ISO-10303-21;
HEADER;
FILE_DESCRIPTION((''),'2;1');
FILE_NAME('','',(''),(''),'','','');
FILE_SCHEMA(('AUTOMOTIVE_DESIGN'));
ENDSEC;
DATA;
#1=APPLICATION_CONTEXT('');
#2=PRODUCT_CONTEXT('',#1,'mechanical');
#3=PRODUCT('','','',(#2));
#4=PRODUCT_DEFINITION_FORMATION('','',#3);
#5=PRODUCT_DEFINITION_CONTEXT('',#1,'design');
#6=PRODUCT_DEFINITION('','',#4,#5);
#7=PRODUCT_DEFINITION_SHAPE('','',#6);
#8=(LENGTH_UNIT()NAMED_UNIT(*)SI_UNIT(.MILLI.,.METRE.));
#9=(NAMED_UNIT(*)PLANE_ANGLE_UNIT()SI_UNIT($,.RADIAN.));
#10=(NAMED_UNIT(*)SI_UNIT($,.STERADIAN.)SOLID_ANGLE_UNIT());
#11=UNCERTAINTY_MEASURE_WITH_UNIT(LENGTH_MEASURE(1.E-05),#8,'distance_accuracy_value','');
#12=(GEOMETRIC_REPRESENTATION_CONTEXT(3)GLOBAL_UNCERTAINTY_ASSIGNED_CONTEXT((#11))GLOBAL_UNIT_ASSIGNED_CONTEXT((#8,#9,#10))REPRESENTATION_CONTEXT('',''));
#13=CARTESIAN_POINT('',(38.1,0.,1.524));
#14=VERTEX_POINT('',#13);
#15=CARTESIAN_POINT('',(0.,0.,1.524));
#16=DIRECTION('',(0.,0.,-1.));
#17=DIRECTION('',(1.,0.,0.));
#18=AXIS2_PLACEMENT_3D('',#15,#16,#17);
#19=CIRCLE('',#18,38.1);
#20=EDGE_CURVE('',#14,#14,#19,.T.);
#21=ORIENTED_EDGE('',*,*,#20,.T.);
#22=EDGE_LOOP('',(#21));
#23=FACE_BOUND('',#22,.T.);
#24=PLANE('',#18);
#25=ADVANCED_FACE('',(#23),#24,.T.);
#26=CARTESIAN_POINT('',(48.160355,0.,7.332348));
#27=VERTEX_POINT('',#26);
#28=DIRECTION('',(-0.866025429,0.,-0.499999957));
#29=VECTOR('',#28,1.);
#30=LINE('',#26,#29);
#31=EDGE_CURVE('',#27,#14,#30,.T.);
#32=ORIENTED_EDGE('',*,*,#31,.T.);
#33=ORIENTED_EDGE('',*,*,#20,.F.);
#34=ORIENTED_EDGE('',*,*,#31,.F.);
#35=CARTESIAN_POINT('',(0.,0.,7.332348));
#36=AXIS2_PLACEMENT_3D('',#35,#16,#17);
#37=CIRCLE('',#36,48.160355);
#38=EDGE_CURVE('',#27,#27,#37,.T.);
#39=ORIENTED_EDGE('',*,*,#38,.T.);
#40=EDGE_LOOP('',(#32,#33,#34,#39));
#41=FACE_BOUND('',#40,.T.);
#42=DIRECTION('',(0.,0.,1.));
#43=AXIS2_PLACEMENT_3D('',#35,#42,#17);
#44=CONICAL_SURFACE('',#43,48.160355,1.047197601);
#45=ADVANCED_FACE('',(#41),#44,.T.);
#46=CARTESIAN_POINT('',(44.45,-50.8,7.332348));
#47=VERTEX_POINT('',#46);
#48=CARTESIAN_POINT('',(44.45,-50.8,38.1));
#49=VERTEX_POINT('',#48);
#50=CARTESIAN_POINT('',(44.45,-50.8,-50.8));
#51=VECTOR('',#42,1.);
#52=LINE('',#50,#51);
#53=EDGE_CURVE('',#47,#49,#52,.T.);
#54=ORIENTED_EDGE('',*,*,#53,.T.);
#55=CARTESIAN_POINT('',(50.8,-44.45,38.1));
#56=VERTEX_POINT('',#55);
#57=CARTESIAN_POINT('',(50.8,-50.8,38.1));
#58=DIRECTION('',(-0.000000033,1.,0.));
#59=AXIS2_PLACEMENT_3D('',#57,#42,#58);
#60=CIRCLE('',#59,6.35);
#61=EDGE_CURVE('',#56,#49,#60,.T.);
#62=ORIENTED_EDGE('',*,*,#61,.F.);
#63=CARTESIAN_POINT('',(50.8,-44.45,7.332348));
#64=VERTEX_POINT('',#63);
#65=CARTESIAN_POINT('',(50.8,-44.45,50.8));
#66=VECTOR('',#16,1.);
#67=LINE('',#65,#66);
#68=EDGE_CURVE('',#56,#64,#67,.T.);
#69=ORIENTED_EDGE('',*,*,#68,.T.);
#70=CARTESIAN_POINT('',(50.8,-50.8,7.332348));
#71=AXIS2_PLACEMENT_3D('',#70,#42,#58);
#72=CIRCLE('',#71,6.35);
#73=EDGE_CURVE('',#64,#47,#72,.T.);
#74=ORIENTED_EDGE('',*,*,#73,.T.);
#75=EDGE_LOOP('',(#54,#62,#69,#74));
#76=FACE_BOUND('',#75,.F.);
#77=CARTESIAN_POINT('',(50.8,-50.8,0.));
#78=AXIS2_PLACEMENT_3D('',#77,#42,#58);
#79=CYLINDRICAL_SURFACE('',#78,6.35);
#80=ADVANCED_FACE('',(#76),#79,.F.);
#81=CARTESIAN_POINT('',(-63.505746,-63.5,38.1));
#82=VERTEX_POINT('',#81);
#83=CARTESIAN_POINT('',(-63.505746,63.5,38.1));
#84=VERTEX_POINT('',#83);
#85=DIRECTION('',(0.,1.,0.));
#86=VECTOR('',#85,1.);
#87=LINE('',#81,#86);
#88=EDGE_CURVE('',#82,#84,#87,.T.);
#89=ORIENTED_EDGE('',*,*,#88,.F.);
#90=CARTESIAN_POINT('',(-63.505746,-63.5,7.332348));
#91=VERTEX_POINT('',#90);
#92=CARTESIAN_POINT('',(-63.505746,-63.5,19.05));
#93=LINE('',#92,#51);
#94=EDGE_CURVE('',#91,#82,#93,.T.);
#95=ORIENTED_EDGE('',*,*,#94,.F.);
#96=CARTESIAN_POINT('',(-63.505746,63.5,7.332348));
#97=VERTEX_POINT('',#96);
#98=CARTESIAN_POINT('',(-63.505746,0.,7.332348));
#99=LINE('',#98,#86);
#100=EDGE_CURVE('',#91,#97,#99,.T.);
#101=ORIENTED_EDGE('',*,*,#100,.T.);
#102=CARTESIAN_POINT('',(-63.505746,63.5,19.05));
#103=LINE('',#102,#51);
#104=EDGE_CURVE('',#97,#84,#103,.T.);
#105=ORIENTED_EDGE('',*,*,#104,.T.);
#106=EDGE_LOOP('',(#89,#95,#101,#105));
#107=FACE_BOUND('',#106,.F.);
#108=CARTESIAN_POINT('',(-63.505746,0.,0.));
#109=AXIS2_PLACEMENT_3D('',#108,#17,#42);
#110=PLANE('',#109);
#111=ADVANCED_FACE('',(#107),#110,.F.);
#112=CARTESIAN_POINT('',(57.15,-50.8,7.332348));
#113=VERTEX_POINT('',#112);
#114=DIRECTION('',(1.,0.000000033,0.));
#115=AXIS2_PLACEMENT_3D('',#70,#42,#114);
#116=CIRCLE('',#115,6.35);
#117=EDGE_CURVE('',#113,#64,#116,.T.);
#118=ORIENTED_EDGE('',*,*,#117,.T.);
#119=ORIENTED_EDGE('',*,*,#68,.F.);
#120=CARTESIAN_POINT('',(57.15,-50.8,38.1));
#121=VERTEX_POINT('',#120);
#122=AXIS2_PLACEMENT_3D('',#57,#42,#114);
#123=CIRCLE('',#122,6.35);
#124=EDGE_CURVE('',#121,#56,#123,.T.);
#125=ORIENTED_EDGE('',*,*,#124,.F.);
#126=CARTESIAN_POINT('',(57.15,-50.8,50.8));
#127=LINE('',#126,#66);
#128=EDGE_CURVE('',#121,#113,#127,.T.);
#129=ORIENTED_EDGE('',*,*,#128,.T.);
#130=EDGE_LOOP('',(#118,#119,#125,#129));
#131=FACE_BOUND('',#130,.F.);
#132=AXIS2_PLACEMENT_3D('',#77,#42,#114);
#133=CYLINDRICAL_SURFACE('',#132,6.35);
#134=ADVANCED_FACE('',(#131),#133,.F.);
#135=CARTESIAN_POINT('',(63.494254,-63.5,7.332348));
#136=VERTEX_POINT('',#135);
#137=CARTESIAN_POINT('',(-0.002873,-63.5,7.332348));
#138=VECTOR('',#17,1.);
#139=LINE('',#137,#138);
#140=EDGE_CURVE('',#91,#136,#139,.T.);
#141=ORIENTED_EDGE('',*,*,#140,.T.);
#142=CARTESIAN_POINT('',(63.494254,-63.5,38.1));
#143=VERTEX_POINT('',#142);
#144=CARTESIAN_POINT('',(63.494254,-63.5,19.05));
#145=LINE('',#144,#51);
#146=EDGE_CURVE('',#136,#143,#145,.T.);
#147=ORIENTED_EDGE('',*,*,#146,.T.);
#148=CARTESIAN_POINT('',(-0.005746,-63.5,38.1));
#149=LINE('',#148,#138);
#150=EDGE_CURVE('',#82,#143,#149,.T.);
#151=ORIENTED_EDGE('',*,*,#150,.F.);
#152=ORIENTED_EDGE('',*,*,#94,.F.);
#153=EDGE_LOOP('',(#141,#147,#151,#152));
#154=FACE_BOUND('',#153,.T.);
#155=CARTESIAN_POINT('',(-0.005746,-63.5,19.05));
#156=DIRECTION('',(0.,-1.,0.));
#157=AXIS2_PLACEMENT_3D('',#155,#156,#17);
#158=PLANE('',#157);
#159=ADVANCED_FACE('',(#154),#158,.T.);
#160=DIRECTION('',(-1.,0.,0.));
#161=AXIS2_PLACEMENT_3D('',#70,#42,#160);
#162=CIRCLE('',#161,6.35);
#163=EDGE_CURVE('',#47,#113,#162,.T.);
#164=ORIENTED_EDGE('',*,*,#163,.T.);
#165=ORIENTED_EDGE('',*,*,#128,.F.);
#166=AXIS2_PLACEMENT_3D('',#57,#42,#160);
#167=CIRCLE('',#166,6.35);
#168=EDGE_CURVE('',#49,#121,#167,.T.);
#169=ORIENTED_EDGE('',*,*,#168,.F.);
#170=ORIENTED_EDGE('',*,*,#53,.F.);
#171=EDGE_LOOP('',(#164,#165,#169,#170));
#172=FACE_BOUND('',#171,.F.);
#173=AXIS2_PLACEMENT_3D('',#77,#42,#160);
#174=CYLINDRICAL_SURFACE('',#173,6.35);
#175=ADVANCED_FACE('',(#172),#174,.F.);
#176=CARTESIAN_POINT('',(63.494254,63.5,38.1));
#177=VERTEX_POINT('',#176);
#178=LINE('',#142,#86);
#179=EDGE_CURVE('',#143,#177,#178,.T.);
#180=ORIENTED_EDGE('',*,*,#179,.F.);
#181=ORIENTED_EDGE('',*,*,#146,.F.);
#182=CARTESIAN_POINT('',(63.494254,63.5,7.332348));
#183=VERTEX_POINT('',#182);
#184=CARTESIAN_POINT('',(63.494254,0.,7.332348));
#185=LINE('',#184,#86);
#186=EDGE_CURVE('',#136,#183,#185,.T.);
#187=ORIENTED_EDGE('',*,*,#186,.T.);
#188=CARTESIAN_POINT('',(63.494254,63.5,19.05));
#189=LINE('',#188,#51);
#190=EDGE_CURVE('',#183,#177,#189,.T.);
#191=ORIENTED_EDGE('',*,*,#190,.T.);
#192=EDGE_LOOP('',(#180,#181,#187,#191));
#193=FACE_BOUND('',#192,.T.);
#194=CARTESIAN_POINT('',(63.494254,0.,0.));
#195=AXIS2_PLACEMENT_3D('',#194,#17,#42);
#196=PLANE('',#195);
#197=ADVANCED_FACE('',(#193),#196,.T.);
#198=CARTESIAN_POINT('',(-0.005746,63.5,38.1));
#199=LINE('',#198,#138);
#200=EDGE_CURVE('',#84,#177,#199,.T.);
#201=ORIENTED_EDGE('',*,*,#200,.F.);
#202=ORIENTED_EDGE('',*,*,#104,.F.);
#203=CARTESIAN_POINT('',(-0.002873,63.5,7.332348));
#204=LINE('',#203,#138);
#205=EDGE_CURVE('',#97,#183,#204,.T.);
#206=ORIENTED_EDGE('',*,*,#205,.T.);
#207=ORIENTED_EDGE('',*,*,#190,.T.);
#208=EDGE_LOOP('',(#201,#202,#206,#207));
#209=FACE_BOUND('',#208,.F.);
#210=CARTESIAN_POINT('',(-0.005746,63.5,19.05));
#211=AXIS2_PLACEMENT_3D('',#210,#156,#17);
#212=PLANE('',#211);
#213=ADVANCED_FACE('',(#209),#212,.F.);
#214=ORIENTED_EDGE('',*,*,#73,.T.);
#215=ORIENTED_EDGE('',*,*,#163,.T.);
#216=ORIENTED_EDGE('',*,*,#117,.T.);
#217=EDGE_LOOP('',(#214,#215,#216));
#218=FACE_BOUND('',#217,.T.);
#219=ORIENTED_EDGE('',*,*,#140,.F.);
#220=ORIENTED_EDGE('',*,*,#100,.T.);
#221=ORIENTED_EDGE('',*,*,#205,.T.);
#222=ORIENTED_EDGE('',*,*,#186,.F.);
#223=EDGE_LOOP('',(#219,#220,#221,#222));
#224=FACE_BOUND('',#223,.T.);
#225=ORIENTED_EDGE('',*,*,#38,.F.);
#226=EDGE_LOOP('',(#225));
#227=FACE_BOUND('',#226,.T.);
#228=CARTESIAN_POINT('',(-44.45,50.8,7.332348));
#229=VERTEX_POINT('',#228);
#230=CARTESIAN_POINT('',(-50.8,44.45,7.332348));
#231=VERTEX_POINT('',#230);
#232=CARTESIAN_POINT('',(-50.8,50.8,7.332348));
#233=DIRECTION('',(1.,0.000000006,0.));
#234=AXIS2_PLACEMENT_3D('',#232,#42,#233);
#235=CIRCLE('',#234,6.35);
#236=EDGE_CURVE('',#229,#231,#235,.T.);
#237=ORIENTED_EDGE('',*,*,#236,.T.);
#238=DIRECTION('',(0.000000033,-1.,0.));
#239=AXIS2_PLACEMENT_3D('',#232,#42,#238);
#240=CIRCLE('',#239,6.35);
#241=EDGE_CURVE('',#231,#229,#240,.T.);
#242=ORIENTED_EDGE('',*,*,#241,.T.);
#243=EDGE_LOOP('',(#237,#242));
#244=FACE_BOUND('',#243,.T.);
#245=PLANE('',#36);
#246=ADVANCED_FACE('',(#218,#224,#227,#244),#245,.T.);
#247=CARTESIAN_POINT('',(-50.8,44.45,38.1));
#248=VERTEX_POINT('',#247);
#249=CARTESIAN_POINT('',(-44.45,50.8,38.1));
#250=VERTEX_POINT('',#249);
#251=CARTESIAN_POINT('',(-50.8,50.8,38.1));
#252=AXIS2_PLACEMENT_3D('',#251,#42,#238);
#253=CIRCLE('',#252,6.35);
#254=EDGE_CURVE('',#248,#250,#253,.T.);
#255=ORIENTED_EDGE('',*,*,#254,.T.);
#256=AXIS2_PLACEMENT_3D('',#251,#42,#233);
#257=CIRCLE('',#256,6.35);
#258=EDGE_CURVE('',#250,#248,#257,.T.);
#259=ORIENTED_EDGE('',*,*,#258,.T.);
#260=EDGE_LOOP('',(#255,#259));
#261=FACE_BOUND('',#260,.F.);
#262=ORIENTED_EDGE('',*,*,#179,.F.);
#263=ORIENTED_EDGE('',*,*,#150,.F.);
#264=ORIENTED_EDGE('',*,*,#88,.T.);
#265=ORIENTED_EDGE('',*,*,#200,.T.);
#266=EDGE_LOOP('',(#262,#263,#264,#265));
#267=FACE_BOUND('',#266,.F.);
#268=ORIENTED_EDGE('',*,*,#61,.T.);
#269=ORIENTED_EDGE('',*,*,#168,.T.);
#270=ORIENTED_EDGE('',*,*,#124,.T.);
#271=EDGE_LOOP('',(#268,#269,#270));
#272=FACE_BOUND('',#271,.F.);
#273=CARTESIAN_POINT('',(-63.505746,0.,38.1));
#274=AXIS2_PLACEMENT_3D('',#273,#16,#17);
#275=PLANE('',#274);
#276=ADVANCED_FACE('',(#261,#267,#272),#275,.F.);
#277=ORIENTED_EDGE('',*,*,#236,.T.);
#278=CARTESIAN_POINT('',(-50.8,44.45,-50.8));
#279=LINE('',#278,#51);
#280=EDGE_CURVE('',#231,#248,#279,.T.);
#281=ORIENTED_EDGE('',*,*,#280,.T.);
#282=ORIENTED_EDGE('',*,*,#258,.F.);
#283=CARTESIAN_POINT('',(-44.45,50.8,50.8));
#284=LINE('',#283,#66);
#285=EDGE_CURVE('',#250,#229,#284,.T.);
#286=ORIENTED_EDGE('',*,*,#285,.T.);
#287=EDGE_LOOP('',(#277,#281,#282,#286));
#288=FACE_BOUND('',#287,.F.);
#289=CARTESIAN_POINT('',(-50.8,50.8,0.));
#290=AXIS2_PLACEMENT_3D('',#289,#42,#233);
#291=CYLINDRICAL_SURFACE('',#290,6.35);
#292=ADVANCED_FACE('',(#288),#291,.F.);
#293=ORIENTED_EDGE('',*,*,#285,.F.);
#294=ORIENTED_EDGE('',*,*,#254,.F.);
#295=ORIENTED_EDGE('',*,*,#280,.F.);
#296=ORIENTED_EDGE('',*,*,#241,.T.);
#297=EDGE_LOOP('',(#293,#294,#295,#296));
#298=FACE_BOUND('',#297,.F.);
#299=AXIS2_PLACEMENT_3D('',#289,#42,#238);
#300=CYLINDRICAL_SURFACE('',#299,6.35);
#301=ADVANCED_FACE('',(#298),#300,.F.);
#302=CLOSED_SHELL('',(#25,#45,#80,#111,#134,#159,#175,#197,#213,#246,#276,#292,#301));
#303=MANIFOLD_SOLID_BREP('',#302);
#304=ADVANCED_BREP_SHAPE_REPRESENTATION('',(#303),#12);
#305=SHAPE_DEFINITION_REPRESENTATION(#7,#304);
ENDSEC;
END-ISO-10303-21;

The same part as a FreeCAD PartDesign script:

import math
import FreeCAD as App
import Part
import Sketcher
Q = App.Units.Quantity

doc = App.newDocument("Part")
body = doc.addObject("PartDesign::Body", "Body")

# Sketch on XZ plane
sketch1 = body.newObject("Sketcher::SketchObject", "Sketch")
sketch1.AttachmentSupport = (doc.getObject("XZ_Plane"), [""])
sketch1.MapMode = "FlatFace"
sketch1.addGeometry([
    Part.LineSegment(App.Vector(-64, 38, 0), App.Vector(-64, 0, 0)),
    Part.LineSegment(App.Vector(-64, 0, 0), App.Vector(63, 0, 0)),
    Part.LineSegment(App.Vector(63, 0, 0), App.Vector(63, 38, 0)),
    Part.LineSegment(App.Vector(63, 38, 0), App.Vector(-64, 38, 0)),
], False)
sketch1.addConstraint([
    Sketcher.Constraint("Coincident", 0, 2, 1, 1),
    Sketcher.Constraint("Coincident", 1, 2, 2, 1),
    Sketcher.Constraint("Coincident", 2, 2, 3, 1),
    Sketcher.Constraint("Coincident", 3, 2, 0, 1),
    Sketcher.Constraint("Vertical", 0),
    Sketcher.Constraint("Horizontal", 1),
    Sketcher.Constraint("Vertical", 2),
    Sketcher.Constraint("Horizontal", 3),
    Sketcher.Constraint("PointOnObject", 0, 2, -1),
    Sketcher.Constraint("DistanceX", 1, 1, 1, 2, Q("5 in")),
    Sketcher.Constraint("DistanceY", 0, 2, 0, 1, Q("1.5 in")),
    Sketcher.Constraint("DistanceX", 0, 2, -1, 1, 63.505746),
])
pad1 = body.newObject("PartDesign::Pad", "Pad")
pad1.Profile = sketch1
pad1.Length = Q("5 in")
pad1.Midplane = True

# Sketch on XZ plane
sketch2 = body.newObject("Sketcher::SketchObject", "Sketch001")
sketch2.AttachmentSupport = (doc.getObject("XZ_Plane"), [""])
sketch2.MapMode = "FlatFace"
sketch2.addGeometry([
    Part.LineSegment(App.Vector(48.2, 7.3, 0), App.Vector(38.1, 1.5, 0)),  # 0
    Part.LineSegment(App.Vector(38.1, 1.5, 0), App.Vector(0, 1.5, 0)),  # 1
    Part.LineSegment(App.Vector(0, 1.5, 0), App.Vector(0, 0, 0)),  # 2
    Part.LineSegment(App.Vector(0, 0, 0), App.Vector(92.6, 0, 0)),  # 3
    Part.LineSegment(App.Vector(92.6, 0, 0), App.Vector(92.6, 7.3, 0)),  # 4
    Part.LineSegment(App.Vector(92.6, 7.3, 0), App.Vector(48.2, 7.3, 0)),  # 5
], False)
sketch2.addConstraint([
    Sketcher.Constraint("Coincident", 0, 2, 1, 1),
    Sketcher.Constraint("Coincident", 1, 2, 2, 1),
    Sketcher.Constraint("Coincident", 2, 2, 3, 1),
    Sketcher.Constraint("Coincident", 3, 2, 4, 1),
    Sketcher.Constraint("Coincident", 4, 2, 5, 1),
    Sketcher.Constraint("Coincident", 5, 2, 0, 1),
    Sketcher.Constraint("Horizontal", 1),
    Sketcher.Constraint("Vertical", 2),
    Sketcher.Constraint("Horizontal", 3),
    Sketcher.Constraint("Vertical", 4),
    Sketcher.Constraint("Horizontal", 5),
    Sketcher.Constraint("Coincident", 2, 2, -1, 1),
    Sketcher.Constraint("DistanceX", 1, 2, 1, 1, Q("1.5 in")),
    Sketcher.Constraint("Angle", 0, Q("-150.000003 deg")),
    Sketcher.Constraint("DistanceY", 2, 2, 2, 1, Q("0.06 in")),
    Sketcher.Constraint("DistanceX", 3, 1, 3, 2, 92.567263),
    Sketcher.Constraint("DistanceX", 5, 2, 5, 1, 44.406908),
])
groove = body.newObject("PartDesign::Groove", "Groove")
groove.Profile = sketch2
groove.ReferenceAxis = (sketch2, ["V_Axis"])
groove.Angle = 360

# Sketch on XY plane
sketch3 = body.newObject("Sketcher::SketchObject", "Sketch002")
sketch3.AttachmentSupport = (doc.getObject("XY_Plane"), [""])
sketch3.MapMode = "FlatFace"
sketch3.addGeometry([
    Part.ArcOfCircle(Part.Circle(App.Vector(-51, 51, 0), App.Vector(0, 0, 1), 6), math.radians(0), math.radians(270)),
    Part.ArcOfCircle(Part.Circle(App.Vector(-51, 51, 0), App.Vector(0, 0, 1), 6), math.radians(-90), math.radians(0)),
], False)
sketch3.addConstraint([
    Sketcher.Constraint("Tangent", 0, 1, 1, 2),
    Sketcher.Constraint("Coincident", 1, 1, 0, 2),
    Sketcher.Constraint("Horizontal", 1, 3, 0, 1),
    Sketcher.Constraint("Vertical", 0, 3, 1, 1),
    Sketcher.Constraint("Radius", 0, Q("0.25 in")),
    Sketcher.Constraint("DistanceX", 0, 3, -1, 1, Q("2 in")),
    Sketcher.Constraint("DistanceY", -1, 1, 0, 3, Q("2 in")),
])
pocket1 = body.newObject("PartDesign::Pocket", "Pocket")
pocket1.Profile = sketch3
pocket1.Length = Q("4 in")
pocket1.Midplane = True

# Sketch on XY plane
sketch4 = body.newObject("Sketcher::SketchObject", "Sketch003")
sketch4.AttachmentSupport = (doc.getObject("XY_Plane"), [""])
sketch4.MapMode = "FlatFace"
sketch4.addGeometry([
    Part.ArcOfCircle(Part.Circle(App.Vector(51, -51, 0), App.Vector(0, 0, 1), 6), math.radians(90), math.radians(180)),
    Part.ArcOfCircle(Part.Circle(App.Vector(51, -51, 0), App.Vector(0, 0, 1), 6), math.radians(180), math.radians(360)),
    Part.ArcOfCircle(Part.Circle(App.Vector(51, -51, 0), App.Vector(0, 0, 1), 6), math.radians(0), math.radians(90)),
], False)
sketch4.addConstraint([
    Sketcher.Constraint("Tangent", 0, 2, 1, 1),
    Sketcher.Constraint("Tangent", 1, 2, 2, 1),
    Sketcher.Constraint("Tangent", 2, 2, 0, 1),
    Sketcher.Constraint("Horizontal", 2, 3, 0, 2),
    Sketcher.Constraint("Horizontal", 0, 2, 1, 2),
    Sketcher.Constraint("Vertical", 1, 3, 2, 2),
    Sketcher.Constraint("Radius", 0, Q("0.25 in")),
    Sketcher.Constraint("DistanceX", -1, 1, 0, 3, Q("2 in")),
    Sketcher.Constraint("DistanceY", 0, 3, -1, 1, Q("2 in")),
])
pocket2 = body.newObject("PartDesign::Pocket", "Pocket001")
pocket2.Profile = sketch4
pocket2.Length = Q("4 in")
pocket2.Midplane = True

doc.recompute()
